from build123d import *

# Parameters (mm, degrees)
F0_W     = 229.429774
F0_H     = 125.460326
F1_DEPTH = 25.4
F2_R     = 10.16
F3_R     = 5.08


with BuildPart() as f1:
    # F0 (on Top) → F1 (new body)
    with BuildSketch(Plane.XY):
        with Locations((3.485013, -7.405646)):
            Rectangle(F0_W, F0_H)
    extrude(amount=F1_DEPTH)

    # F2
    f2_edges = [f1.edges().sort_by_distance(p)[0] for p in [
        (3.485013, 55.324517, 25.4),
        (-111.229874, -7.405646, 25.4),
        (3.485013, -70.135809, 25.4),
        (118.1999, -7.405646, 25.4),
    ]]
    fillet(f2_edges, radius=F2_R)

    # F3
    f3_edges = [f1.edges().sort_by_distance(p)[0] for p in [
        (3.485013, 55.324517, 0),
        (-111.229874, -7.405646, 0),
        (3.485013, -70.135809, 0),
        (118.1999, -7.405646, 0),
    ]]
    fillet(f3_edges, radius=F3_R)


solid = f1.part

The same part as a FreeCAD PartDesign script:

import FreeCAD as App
import Part
import Sketcher
from FreeCAD import Vector
Q = App.Units.Quantity


def edges_at(feature, points):
    """Names of the edges that pass closest to the given points."""
    edges = feature.Shape.Edges
    near = lambda p: min(range(len(edges)), key=lambda i: edges[i].distToShape(Part.Vertex(*p))[0])
    return sorted({f"Edge{near(p) + 1}" for p in points})

doc = App.newDocument("Part")
params = doc.addObject("Spreadsheet::Sheet", "Params")
for row, (alias, value) in enumerate([
    ("pad1_length", "1 in"),
    ("fillet_radius", "0.4 in"),
    ("fillet2_radius", "0.2 in"),
], start=1):
    params.set(f"A{row}", alias)
    params.set(f"B{row}", "=" + value)
    params.setAlias(f"B{row}", alias)

body = doc.addObject("PartDesign::Body", "Body")

# Sketch on XY plane
sketch1 = body.newObject("Sketcher::SketchObject", "Sketch")
sketch1.AttachmentSupport = (doc.getObject("XY_Plane"), [""])
sketch1.MapMode = "FlatFace"
sketch1.addGeometry([
    Part.LineSegment(Vector(-111, 55, 0), Vector(-111, -70, 0)),
    Part.LineSegment(Vector(-111, -70, 0), Vector(118, -70, 0)),
    Part.LineSegment(Vector(118, -70, 0), Vector(118, 55, 0)),
    Part.LineSegment(Vector(118, 55, 0), Vector(-111, 55, 0)),
], False)
sketch1.addConstraint([
    Sketcher.Constraint("Coincident", 0, 2, 1, 1),
    Sketcher.Constraint("Coincident", 1, 2, 2, 1),
    Sketcher.Constraint("Coincident", 2, 2, 3, 1),
    Sketcher.Constraint("Coincident", 3, 2, 0, 1),
    Sketcher.Constraint("Vertical", 0),
    Sketcher.Constraint("Horizontal", 1),
    Sketcher.Constraint("Vertical", 2),
    Sketcher.Constraint("Horizontal", 3),
    Sketcher.Constraint("DistanceX", -1, 1, 1, 2, Q("118.1999 mm")),
    Sketcher.Constraint("DistanceX", 1, 1, 1, 2, Q("229.429774 mm")),
    Sketcher.Constraint("DistanceY", 0, 2, 0, 1, Q("125.460326 mm")),
    Sketcher.Constraint("DistanceY", 0, 2, -1, 1, Q("70.135809 mm")),
])
pad1 = body.newObject("PartDesign::Pad", "Pad")
pad1.Profile = sketch1
pad1.setExpression("Length", "Params.pad1_length")
doc.recompute()

fillet = body.newObject("PartDesign::Fillet", "Fillet")
fillet.Base = (pad1, edges_at(pad1, [
    (3.485, 55.325, 25.4),
    (-111.23, -7.406, 25.4),
    (3.485, -70.136, 25.4),
    (118.2, -7.406, 25.4),
]))
fillet.setExpression("Radius", "Params.fillet_radius")
doc.recompute()

fillet2 = body.newObject("PartDesign::Fillet", "Fillet001")
fillet2.Base = (fillet, edges_at(fillet, [
    (3.485, 55.325, 0),
    (-111.23, -7.406, 0),
    (3.485, -70.136, 0),
    (118.2, -7.406, 0),
]))
fillet2.setExpression("Radius", "Params.fillet2_radius")

doc.recompute()
